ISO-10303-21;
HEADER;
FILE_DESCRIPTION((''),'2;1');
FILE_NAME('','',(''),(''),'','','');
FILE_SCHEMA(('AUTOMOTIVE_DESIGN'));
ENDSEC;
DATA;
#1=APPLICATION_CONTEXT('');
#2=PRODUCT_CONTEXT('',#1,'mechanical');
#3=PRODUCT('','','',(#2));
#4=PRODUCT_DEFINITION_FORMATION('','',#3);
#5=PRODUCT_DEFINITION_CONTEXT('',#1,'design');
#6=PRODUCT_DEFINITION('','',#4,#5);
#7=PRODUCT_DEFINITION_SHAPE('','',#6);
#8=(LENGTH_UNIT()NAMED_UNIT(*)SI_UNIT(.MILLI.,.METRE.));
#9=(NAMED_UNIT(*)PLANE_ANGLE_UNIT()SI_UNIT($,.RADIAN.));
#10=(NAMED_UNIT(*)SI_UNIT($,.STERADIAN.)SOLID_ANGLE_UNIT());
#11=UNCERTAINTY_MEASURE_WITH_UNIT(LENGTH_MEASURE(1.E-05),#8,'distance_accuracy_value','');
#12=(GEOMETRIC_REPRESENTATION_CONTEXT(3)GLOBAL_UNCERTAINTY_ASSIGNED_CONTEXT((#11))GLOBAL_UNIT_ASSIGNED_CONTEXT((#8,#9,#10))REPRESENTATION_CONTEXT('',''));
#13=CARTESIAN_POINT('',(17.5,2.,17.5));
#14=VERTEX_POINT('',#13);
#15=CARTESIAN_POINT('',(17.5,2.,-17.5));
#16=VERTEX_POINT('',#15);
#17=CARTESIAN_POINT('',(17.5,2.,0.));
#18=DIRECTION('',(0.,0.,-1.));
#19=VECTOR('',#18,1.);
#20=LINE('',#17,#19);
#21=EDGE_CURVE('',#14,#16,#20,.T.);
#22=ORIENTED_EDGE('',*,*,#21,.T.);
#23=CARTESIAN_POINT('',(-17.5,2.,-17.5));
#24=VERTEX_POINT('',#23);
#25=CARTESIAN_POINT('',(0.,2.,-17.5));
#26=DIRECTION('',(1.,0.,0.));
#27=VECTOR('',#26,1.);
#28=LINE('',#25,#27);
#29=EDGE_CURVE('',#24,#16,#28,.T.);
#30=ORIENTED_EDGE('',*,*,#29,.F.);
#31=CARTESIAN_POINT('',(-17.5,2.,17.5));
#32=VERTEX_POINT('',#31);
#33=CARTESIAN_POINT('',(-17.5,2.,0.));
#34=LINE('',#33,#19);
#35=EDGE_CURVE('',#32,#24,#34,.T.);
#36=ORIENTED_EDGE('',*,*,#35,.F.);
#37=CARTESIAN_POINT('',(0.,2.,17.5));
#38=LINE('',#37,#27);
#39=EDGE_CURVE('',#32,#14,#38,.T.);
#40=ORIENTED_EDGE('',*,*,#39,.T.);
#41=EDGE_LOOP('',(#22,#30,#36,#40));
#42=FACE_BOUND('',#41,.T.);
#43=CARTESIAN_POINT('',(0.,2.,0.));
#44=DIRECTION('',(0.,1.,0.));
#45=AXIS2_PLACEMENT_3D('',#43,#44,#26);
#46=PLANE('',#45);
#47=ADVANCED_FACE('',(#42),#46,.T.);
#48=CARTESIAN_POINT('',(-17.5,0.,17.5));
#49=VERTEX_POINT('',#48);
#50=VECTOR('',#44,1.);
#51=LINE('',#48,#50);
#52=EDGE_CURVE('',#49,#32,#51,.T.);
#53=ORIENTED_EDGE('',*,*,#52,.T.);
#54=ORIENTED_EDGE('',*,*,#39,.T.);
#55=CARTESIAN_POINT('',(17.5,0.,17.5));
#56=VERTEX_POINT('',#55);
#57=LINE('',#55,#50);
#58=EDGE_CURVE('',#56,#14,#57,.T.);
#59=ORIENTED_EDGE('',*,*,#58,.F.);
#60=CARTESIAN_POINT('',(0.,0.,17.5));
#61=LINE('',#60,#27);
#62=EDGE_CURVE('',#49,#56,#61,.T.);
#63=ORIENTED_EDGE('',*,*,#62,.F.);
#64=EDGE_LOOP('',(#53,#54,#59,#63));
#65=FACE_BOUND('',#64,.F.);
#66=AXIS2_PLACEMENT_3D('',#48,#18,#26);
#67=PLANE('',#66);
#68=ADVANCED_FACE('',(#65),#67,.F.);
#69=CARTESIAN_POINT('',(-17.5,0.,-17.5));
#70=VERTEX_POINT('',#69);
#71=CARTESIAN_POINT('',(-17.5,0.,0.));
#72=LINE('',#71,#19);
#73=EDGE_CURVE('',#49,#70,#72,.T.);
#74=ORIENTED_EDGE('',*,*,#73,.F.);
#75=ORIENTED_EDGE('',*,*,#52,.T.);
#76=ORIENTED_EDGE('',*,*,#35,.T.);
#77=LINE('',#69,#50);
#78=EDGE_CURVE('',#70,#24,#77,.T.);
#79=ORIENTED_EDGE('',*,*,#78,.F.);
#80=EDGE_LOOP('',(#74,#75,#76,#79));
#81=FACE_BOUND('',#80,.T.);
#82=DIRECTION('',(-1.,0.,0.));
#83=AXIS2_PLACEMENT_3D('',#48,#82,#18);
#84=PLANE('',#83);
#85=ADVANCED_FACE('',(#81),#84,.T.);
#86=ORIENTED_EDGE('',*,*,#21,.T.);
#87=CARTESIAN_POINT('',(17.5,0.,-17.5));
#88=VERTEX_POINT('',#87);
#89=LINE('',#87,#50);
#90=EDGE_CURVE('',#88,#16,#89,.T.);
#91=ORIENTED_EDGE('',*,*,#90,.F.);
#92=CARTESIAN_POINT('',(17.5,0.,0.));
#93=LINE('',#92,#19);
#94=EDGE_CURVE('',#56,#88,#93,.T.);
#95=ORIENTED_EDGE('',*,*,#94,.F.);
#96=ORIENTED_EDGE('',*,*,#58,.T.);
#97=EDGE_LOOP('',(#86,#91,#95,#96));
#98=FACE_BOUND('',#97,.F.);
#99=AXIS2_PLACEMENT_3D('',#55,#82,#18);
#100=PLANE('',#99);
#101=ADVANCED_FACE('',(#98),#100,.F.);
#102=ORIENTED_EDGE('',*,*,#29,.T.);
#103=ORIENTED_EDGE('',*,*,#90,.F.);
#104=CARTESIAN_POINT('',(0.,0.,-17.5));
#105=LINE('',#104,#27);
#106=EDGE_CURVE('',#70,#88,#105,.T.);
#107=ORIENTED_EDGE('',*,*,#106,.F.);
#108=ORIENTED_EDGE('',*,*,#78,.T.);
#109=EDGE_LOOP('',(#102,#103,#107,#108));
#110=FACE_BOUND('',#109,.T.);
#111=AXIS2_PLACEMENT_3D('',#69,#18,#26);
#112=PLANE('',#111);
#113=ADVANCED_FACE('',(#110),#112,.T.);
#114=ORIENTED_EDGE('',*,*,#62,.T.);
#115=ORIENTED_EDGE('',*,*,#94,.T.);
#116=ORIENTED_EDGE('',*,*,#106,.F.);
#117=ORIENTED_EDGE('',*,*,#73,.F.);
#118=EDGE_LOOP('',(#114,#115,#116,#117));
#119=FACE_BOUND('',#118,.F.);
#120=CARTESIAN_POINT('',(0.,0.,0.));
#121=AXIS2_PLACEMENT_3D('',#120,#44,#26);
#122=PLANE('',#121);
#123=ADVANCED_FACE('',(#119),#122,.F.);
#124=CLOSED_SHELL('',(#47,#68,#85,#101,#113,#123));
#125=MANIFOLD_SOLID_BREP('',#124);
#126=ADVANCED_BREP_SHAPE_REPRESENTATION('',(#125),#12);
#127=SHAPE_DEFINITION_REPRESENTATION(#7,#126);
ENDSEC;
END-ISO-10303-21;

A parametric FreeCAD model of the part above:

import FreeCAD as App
import Part
import Sketcher
Q = App.Units.Quantity

doc = App.newDocument("Part")
body = doc.addObject("PartDesign::Body", "Body")

# Sketch on XZ plane
sketch1 = body.newObject("Sketcher::SketchObject", "Sketch")
sketch1.AttachmentSupport = (doc.getObject("XZ_Plane"), [""])
sketch1.MapMode = "FlatFace"
sketch1.addGeometry([
    Part.LineSegment(App.Vector(-18, -18, 0), App.Vector(-18, 18, 0)),
    Part.LineSegment(App.Vector(-18, 18, 0), App.Vector(18, 18, 0)),
    Part.LineSegment(App.Vector(18, 18, 0), App.Vector(18, -18, 0)),
    Part.LineSegment(App.Vector(18, -18, 0), App.Vector(-18, -18, 0)),
], False)
sketch1.addConstraint([
    Sketcher.Constraint("Coincident", 0, 2, 1, 1),
    Sketcher.Constraint("Coincident", 1, 2, 2, 1),
    Sketcher.Constraint("Coincident", 2, 2, 3, 1),
    Sketcher.Constraint("Coincident", 3, 2, 0, 1),
    Sketcher.Constraint("Vertical", 0),
    Sketcher.Constraint("Horizontal", 1),
    Sketcher.Constraint("Vertical", 2),
    Sketcher.Constraint("Horizontal", 3),
    Sketcher.Constraint("Symmetric", 0, 2, 2, 2, -1, 1),
    Sketcher.Constraint("Equal", 3, 0),
    Sketcher.Constraint("DistanceX", 1, 1, 1, 2, Q("35 mm")),
])
pad1 = body.newObject("PartDesign::Pad", "Pad")
pad1.Profile = sketch1
pad1.Length = 2
pad1.Reversed = True

doc.recompute()
